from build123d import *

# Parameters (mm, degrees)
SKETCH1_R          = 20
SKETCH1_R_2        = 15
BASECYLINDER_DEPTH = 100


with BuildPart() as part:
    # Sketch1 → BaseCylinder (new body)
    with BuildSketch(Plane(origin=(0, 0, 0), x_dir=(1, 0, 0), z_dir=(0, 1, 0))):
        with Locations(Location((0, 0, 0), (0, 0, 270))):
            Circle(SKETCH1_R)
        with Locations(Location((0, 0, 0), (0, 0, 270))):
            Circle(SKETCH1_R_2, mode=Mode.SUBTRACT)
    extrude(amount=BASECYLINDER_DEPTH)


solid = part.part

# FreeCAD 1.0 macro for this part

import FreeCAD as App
import Part
import Sketcher
from FreeCAD import Vector
Q = App.Units.Quantity

doc = App.newDocument("Part")
params = doc.addObject("Spreadsheet::Sheet", "Params")
for row, (alias, value) in enumerate([
    ("sketch1_diameter", "40 mm"),
    ("sketch1_diameter2", "30 mm"),
    ("pad1_length", "100 mm"),
], start=1):
    params.set(f"A{row}", alias)
    params.set(f"B{row}", "=" + value)
    params.setAlias(f"B{row}", alias)

body = doc.addObject("PartDesign::Body", "Body")

sketch1 = body.newObject("Sketcher::SketchObject", "Sketch")
sketch1.AttachmentSupport = (doc.getObject("XZ_Plane"), [""])
sketch1.MapMode = "FlatFace"
sketch1.addGeometry([
    Part.Circle(Vector(0, 0, 0), Vector(0, 0, 1), 20),
    Part.Circle(Vector(0, 0, 0), Vector(0, 0, 1), 15),
], False)
sketch1.addConstraint([
    Sketcher.Constraint("Coincident", 0, 3, -1, 1),
    Sketcher.Constraint("Coincident", 1, 3, -1, 1),
    Sketcher.Constraint("Diameter", 0, Q("40 mm")),
    Sketcher.Constraint("Diameter", 1, Q("30 mm")),
])
sketch1.setExpression("Constraints[2]", "Params.sketch1_diameter")
sketch1.setExpression("Constraints[3]", "Params.sketch1_diameter2")
pad1 = body.newObject("PartDesign::Pad", "Pad")
pad1.Profile = sketch1
pad1.setExpression("Length", "Params.pad1_length")
pad1.Reversed = True

doc.recompute()
